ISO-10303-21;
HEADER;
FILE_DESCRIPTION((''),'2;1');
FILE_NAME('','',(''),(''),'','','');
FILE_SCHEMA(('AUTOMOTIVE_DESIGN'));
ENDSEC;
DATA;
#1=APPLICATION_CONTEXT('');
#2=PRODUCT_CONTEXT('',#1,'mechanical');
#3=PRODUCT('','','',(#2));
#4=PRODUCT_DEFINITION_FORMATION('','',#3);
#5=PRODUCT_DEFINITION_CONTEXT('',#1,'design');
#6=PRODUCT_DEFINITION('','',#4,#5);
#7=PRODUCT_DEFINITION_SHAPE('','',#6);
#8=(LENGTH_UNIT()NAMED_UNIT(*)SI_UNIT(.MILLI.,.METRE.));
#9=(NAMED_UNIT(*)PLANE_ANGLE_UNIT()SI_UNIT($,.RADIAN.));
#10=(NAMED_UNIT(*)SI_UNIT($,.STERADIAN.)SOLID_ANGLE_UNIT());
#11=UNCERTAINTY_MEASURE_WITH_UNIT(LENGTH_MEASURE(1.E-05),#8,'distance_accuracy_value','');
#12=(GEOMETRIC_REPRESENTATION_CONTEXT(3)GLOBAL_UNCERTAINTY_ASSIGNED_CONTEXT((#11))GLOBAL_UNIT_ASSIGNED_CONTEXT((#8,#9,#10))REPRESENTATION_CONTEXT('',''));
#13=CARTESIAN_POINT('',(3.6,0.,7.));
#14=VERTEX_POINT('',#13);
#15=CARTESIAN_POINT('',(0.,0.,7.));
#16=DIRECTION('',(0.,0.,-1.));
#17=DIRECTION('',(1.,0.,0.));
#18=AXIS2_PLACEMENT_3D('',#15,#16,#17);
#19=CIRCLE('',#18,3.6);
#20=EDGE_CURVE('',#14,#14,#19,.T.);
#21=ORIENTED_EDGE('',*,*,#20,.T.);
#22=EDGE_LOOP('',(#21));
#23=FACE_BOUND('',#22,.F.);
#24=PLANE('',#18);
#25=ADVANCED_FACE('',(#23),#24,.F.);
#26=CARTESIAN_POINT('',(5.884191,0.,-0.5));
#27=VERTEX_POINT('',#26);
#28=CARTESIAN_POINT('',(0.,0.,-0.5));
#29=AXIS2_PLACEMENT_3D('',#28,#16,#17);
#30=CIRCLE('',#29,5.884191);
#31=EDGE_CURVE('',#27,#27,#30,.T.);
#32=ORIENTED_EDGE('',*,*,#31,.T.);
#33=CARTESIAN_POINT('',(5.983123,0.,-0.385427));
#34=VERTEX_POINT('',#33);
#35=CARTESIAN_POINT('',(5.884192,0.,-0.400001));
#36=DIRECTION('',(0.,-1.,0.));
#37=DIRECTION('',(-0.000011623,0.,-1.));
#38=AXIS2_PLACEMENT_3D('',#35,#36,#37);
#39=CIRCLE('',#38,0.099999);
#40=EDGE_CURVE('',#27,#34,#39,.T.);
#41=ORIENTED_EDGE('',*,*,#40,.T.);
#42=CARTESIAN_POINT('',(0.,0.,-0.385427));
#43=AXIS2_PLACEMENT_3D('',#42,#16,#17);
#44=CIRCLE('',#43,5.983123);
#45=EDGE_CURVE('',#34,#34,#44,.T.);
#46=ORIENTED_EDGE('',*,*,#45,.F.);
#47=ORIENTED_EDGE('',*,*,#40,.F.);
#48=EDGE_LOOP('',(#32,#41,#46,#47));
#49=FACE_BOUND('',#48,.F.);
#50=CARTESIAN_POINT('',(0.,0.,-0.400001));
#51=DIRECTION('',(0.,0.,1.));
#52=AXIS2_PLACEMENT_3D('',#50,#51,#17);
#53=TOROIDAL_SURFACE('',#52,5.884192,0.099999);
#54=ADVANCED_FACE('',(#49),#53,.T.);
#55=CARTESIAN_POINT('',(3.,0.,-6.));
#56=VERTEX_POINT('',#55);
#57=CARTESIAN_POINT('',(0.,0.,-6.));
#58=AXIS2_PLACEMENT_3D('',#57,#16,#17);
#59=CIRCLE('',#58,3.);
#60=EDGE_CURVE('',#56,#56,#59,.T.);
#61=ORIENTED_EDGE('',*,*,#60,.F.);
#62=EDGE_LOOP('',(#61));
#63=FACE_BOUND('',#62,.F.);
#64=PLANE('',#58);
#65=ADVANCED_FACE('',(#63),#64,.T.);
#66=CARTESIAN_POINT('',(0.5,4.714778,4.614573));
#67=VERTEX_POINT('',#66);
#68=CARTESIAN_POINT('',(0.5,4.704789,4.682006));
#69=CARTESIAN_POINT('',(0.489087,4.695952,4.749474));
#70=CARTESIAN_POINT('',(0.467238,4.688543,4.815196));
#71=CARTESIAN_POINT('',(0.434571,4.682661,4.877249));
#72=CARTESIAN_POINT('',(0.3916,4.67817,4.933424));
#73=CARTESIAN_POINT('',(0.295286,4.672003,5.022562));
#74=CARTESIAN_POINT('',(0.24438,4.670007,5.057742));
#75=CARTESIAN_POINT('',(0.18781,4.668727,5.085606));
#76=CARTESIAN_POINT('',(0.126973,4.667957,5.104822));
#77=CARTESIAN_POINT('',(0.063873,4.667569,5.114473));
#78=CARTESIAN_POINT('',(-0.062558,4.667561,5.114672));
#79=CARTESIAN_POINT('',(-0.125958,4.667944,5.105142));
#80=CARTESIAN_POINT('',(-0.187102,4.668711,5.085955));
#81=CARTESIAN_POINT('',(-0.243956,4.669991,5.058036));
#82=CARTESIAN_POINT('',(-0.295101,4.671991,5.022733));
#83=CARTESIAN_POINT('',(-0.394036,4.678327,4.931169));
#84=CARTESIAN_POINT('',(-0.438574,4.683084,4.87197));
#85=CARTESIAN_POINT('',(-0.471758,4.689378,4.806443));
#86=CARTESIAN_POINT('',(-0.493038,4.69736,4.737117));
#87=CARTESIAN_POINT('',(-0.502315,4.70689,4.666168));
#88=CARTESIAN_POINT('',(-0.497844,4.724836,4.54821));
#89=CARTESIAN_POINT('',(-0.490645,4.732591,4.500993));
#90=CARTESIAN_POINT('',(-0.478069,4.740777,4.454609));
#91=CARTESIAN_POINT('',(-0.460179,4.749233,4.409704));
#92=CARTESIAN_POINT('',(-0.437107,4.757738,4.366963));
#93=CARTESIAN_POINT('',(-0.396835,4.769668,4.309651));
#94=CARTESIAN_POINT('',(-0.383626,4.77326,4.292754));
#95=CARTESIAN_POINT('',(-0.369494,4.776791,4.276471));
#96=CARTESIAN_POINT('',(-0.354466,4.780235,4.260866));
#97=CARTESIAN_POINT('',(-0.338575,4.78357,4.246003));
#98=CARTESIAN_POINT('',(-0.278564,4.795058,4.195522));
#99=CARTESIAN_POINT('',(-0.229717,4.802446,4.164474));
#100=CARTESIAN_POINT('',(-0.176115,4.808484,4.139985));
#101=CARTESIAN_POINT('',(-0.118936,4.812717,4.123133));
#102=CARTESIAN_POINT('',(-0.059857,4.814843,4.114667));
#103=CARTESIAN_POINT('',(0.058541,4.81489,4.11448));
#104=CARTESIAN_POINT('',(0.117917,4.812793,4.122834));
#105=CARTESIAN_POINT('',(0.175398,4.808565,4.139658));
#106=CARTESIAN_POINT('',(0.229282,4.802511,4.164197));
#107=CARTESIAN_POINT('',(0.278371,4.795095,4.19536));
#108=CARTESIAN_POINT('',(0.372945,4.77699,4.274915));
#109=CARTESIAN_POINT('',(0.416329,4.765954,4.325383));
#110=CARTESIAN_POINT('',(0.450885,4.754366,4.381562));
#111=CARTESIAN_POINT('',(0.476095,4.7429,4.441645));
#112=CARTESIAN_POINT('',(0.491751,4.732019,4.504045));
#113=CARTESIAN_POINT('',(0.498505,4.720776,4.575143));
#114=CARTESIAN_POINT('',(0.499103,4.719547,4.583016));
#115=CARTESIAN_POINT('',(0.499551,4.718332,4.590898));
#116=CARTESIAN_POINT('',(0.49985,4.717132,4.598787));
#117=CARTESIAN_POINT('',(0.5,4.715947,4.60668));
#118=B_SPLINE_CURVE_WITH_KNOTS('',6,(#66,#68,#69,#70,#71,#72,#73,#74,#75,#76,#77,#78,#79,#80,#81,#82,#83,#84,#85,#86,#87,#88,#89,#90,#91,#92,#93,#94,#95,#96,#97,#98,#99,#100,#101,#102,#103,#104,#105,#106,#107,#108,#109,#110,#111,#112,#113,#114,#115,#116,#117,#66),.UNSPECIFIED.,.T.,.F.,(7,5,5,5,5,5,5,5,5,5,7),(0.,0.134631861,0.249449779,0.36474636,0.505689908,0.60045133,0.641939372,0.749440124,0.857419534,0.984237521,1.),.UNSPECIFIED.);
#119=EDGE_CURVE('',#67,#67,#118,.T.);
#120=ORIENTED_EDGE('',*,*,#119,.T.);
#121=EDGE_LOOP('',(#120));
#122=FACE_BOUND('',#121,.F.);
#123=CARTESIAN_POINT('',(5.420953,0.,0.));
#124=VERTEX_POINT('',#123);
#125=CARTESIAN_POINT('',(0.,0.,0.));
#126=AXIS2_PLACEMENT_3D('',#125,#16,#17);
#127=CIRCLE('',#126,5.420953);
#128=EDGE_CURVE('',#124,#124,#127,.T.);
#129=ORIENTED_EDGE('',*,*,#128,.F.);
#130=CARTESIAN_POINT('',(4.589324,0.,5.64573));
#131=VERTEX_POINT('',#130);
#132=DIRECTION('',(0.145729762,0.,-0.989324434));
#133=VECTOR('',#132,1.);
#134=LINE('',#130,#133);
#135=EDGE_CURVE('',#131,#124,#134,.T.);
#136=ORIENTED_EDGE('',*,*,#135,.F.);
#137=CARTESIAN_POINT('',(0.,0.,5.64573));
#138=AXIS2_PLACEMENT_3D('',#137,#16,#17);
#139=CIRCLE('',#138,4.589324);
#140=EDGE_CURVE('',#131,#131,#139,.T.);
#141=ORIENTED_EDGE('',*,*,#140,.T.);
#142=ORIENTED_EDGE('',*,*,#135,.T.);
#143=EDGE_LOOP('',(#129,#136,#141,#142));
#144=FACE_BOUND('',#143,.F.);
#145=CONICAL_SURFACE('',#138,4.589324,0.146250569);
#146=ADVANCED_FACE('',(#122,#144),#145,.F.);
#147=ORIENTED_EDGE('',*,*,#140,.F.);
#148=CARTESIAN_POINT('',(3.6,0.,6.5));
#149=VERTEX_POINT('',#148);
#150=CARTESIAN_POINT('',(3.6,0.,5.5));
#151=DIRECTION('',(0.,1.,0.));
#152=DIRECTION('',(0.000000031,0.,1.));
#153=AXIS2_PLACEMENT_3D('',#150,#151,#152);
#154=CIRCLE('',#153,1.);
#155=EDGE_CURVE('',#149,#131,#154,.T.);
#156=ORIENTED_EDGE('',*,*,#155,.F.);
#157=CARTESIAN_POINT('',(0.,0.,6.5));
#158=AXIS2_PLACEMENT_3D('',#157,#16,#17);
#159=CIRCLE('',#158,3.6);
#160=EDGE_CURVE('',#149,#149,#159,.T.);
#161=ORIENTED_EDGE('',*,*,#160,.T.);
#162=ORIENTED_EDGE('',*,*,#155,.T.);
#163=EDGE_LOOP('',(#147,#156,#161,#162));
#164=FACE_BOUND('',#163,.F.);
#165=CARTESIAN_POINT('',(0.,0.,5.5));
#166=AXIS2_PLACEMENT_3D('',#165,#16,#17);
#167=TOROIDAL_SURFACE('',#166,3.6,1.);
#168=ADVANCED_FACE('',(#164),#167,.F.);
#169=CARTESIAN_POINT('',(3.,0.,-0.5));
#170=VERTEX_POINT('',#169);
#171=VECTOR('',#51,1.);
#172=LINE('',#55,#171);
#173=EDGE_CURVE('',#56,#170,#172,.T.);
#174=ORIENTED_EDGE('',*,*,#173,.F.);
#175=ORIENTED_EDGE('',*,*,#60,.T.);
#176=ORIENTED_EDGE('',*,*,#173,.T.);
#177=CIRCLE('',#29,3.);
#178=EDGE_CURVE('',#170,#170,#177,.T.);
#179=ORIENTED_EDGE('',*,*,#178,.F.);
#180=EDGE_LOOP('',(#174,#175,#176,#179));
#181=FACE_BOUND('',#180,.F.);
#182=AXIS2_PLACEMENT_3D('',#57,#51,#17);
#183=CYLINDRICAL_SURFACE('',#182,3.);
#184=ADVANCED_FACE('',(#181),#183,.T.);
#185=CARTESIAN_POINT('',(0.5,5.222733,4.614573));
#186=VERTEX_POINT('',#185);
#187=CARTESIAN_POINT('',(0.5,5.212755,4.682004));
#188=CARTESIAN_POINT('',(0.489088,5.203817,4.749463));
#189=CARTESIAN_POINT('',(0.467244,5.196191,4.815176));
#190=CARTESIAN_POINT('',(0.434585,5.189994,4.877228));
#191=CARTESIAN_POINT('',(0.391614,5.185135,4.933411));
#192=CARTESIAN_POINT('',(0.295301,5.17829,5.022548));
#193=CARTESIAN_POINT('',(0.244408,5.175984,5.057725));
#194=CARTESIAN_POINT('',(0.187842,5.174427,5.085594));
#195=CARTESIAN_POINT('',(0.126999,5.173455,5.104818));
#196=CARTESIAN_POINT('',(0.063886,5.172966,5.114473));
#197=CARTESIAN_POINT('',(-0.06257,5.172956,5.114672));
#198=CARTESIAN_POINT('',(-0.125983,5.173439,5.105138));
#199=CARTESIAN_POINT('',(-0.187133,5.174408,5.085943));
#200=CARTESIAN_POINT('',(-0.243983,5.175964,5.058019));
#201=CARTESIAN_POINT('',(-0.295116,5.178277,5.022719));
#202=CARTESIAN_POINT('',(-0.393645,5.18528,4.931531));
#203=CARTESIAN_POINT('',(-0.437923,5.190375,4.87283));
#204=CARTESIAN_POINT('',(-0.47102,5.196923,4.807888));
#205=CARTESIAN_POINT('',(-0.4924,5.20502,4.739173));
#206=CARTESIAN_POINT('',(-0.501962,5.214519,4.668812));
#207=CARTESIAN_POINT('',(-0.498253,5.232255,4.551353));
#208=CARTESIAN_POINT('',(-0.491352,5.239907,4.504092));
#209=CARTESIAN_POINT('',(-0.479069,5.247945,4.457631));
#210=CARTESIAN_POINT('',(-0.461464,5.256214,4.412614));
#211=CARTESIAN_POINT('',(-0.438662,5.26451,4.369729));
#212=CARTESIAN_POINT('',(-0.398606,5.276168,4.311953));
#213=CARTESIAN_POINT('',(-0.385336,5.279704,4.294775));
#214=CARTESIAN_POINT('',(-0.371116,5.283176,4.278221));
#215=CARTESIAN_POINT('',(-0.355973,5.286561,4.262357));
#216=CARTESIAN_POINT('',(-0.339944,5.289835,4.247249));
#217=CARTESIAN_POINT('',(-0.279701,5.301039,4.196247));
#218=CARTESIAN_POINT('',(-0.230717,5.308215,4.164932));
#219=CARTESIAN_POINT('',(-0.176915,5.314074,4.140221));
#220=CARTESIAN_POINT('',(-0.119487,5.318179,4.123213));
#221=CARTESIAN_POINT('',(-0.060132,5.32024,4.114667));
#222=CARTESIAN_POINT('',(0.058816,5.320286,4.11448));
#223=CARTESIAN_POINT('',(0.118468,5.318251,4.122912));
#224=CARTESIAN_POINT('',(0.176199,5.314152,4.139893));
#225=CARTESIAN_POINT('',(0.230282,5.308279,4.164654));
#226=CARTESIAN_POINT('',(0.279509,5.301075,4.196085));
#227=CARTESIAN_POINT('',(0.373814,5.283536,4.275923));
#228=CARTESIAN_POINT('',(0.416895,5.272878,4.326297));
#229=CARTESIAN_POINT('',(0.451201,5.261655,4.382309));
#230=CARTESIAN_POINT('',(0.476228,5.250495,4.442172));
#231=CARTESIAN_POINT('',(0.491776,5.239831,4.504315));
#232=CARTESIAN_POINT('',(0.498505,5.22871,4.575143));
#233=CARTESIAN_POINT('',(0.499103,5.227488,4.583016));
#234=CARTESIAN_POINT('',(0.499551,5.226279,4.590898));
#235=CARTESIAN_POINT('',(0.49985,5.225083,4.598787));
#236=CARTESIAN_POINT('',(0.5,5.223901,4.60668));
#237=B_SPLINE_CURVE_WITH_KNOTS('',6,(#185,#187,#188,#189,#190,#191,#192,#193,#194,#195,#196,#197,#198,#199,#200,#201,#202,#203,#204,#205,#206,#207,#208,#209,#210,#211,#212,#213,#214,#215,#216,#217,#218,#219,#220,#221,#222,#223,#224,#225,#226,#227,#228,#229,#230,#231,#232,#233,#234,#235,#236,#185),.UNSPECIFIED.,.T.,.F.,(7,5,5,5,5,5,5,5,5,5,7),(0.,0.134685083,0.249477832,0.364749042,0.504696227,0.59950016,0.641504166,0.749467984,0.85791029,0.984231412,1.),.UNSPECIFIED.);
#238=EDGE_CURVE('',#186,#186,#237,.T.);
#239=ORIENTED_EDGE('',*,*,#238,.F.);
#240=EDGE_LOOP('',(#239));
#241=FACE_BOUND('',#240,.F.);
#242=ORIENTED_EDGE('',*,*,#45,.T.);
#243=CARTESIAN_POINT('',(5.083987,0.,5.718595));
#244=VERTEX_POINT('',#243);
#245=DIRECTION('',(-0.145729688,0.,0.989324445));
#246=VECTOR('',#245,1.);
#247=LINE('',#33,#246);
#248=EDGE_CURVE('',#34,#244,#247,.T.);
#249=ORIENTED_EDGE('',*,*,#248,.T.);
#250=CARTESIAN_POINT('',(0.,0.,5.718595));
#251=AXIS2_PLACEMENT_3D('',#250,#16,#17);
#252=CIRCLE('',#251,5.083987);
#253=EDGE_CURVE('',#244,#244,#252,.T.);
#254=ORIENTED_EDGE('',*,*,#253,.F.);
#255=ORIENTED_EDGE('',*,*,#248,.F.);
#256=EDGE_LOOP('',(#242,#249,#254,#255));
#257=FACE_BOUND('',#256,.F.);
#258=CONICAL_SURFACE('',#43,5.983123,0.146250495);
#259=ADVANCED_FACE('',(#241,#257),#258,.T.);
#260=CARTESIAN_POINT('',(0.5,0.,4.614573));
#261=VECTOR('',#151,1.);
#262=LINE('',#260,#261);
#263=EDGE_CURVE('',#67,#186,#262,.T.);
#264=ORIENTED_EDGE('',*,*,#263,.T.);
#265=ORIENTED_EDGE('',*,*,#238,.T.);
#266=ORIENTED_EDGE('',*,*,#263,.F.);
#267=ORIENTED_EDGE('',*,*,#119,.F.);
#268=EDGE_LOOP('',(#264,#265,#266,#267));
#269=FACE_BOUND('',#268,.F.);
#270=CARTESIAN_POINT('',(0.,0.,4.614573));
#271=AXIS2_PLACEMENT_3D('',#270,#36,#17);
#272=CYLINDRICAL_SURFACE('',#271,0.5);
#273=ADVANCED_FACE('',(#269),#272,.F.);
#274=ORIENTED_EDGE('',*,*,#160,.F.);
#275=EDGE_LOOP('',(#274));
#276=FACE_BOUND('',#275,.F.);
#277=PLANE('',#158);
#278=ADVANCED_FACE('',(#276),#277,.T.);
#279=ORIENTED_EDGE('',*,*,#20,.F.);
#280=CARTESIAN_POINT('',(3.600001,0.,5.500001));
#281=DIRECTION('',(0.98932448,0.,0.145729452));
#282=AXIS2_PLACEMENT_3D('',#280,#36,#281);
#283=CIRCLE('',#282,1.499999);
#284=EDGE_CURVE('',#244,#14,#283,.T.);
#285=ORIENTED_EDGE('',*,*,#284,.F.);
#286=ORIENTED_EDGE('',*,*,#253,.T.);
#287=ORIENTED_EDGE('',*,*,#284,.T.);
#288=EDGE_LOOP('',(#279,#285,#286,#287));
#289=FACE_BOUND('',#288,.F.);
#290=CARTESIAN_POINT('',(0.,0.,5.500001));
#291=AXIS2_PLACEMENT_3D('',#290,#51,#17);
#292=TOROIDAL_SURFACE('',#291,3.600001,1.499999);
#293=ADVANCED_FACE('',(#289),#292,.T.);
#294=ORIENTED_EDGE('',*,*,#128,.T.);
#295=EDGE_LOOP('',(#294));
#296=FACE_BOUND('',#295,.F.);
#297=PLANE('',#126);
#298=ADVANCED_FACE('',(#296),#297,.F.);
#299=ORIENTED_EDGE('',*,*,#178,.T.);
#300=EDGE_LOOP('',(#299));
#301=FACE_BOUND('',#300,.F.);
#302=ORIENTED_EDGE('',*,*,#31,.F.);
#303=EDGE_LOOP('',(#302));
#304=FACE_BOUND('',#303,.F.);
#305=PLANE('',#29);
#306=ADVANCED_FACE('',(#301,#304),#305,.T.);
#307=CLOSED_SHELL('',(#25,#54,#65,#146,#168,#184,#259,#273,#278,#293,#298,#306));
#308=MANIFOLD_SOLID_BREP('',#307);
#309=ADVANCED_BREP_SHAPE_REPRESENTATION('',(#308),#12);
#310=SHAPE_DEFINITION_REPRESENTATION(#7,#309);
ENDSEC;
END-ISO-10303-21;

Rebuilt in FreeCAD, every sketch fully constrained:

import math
import FreeCAD as App
import Part
import Sketcher

doc = App.newDocument("Part")
body = doc.addObject("PartDesign::Body", "Body")

sketch1 = body.newObject("Sketcher::SketchObject", "Sketch")
sketch1.AttachmentSupport = (doc.getObject("XZ_Plane"), [""])
sketch1.MapMode = "FlatFace"
sketch1.addGeometry([
    Part.LineSegment(App.Vector(5.42, 0, 0), App.Vector(0, 0, 0)),
    Part.LineSegment(App.Vector(0, 0, 0), App.Vector(0, -6, 0)),
    Part.LineSegment(App.Vector(0, -6, 0), App.Vector(3, -6, 0)),
    Part.LineSegment(App.Vector(3, -6, 0), App.Vector(3, -0.5, 0)),
    Part.LineSegment(App.Vector(3, -0.5, 0), App.Vector(5.88, -0.5, 0)),
    Part.ArcOfCircle(Part.Circle(App.Vector(5.88, -0.4, 0), App.Vector(0, 0, 1), 0.1), math.radians(-90), math.radians(8)),
    Part.LineSegment(App.Vector(5.98, -0.39, 0), App.Vector(5.08, 5.72, 0)),
    Part.ArcOfCircle(Part.Circle(App.Vector(3.6, 5.5, 0), App.Vector(0, 0, 1), 1.5), math.radians(8), math.radians(90)),
    Part.LineSegment(App.Vector(3.6, 7, 0), App.Vector(0, 7, 0)),
    Part.LineSegment(App.Vector(0, 7, 0), App.Vector(0, 6.5, 0)),
    Part.LineSegment(App.Vector(0, 6.5, 0), App.Vector(3.6, 6.5, 0)),
    Part.ArcOfCircle(Part.Circle(App.Vector(3.6, 5.5, 0), App.Vector(0, 0, 1), 1), math.radians(8), math.radians(90)),
    Part.LineSegment(App.Vector(4.59, 5.65, 0), App.Vector(5.42, 0, 0)),
], False)
sketch1.addConstraint([
    Sketcher.Constraint("Coincident", 0, 2, 1, 1),
    Sketcher.Constraint("Coincident", 1, 2, 2, 1),
    Sketcher.Constraint("Coincident", 2, 2, 3, 1),
    Sketcher.Constraint("Coincident", 3, 2, 4, 1),
    Sketcher.Constraint("Coincident", 4, 2, 5, 1),
    Sketcher.Constraint("Coincident", 5, 2, 6, 1),
    Sketcher.Constraint("Tangent", 6, 2, 7, 1),
    Sketcher.Constraint("Tangent", 7, 2, 8, 1),
    Sketcher.Constraint("Coincident", 8, 2, 9, 1),
    Sketcher.Constraint("Coincident", 9, 2, 10, 1),
    Sketcher.Constraint("Tangent", 10, 2, 11, 2),
    Sketcher.Constraint("Tangent", 11, 1, 12, 1),
    Sketcher.Constraint("Coincident", 12, 2, 0, 1),
    Sketcher.Constraint("Horizontal", 0),
    Sketcher.Constraint("Vertical", 1),
    Sketcher.Constraint("Horizontal", 2),
    Sketcher.Constraint("Vertical", 3),
    Sketcher.Constraint("Horizontal", 4),
    Sketcher.Constraint("Horizontal", 8),
    Sketcher.Constraint("Vertical", 9),
    Sketcher.Constraint("Horizontal", 10),
    Sketcher.Constraint("Coincident", 0, 2, -1, 1),
    Sketcher.Constraint("Coincident", 11, 3, 7, 3),
    Sketcher.Constraint("PointOnObject", 8, 2, -2),
    Sketcher.Constraint("Parallel", 6, 12),
    Sketcher.Constraint("Vertical", 5, 3, 4, 2),
    Sketcher.Constraint("Radius", 11, 1.0),
    Sketcher.Constraint("Radius", 5, 0.099999),
    Sketcher.Constraint("Radius", 7, 1.499999),
    Sketcher.Constraint("DistanceX", 2, 1, 2, 2, 3.0),
    Sketcher.Constraint("DistanceY", 1, 2, 1, 1, 6.0),
    Sketcher.Constraint("DistanceX", 8, 2, 8, 1, 3.6),
    Sketcher.Constraint("DistanceY", 3, 1, 3, 2, 5.5),
    Sketcher.Constraint("DistanceY", -1, 1, 7, 2, 7.0),
    Sketcher.Constraint("DistanceX", 4, 1, 4, 2, 2.884191),
    Sketcher.Constraint("Distance", 6, 6.169889),
])
revolution = body.newObject("PartDesign::Revolution", "Revolution")
revolution.Profile = sketch1
revolution.ReferenceAxis = (sketch1, ["V_Axis"])
revolution.Angle = 360

sketch2 = body.newObject("Sketcher::SketchObject", "Sketch001")
sketch2.AttachmentSupport = (doc.getObject("XZ_Plane"), [""])
sketch2.MapMode = "FlatFace"
sketch2.addGeometry(Part.Circle(App.Vector(0, 4.6, 0), App.Vector(0, 0, 1), 0.5), False)
sketch2.addConstraint([
    Sketcher.Constraint("PointOnObject", 0, 3, -2),
    Sketcher.Constraint("Diameter", 0, 1.0),
    Sketcher.Constraint("DistanceY", -1, 1, 0, 3, 4.614573),
])
pocket1 = body.newObject("PartDesign::Pocket", "Pocket")
pocket1.Profile = sketch2
pocket1.Length = 25

doc.recompute()
